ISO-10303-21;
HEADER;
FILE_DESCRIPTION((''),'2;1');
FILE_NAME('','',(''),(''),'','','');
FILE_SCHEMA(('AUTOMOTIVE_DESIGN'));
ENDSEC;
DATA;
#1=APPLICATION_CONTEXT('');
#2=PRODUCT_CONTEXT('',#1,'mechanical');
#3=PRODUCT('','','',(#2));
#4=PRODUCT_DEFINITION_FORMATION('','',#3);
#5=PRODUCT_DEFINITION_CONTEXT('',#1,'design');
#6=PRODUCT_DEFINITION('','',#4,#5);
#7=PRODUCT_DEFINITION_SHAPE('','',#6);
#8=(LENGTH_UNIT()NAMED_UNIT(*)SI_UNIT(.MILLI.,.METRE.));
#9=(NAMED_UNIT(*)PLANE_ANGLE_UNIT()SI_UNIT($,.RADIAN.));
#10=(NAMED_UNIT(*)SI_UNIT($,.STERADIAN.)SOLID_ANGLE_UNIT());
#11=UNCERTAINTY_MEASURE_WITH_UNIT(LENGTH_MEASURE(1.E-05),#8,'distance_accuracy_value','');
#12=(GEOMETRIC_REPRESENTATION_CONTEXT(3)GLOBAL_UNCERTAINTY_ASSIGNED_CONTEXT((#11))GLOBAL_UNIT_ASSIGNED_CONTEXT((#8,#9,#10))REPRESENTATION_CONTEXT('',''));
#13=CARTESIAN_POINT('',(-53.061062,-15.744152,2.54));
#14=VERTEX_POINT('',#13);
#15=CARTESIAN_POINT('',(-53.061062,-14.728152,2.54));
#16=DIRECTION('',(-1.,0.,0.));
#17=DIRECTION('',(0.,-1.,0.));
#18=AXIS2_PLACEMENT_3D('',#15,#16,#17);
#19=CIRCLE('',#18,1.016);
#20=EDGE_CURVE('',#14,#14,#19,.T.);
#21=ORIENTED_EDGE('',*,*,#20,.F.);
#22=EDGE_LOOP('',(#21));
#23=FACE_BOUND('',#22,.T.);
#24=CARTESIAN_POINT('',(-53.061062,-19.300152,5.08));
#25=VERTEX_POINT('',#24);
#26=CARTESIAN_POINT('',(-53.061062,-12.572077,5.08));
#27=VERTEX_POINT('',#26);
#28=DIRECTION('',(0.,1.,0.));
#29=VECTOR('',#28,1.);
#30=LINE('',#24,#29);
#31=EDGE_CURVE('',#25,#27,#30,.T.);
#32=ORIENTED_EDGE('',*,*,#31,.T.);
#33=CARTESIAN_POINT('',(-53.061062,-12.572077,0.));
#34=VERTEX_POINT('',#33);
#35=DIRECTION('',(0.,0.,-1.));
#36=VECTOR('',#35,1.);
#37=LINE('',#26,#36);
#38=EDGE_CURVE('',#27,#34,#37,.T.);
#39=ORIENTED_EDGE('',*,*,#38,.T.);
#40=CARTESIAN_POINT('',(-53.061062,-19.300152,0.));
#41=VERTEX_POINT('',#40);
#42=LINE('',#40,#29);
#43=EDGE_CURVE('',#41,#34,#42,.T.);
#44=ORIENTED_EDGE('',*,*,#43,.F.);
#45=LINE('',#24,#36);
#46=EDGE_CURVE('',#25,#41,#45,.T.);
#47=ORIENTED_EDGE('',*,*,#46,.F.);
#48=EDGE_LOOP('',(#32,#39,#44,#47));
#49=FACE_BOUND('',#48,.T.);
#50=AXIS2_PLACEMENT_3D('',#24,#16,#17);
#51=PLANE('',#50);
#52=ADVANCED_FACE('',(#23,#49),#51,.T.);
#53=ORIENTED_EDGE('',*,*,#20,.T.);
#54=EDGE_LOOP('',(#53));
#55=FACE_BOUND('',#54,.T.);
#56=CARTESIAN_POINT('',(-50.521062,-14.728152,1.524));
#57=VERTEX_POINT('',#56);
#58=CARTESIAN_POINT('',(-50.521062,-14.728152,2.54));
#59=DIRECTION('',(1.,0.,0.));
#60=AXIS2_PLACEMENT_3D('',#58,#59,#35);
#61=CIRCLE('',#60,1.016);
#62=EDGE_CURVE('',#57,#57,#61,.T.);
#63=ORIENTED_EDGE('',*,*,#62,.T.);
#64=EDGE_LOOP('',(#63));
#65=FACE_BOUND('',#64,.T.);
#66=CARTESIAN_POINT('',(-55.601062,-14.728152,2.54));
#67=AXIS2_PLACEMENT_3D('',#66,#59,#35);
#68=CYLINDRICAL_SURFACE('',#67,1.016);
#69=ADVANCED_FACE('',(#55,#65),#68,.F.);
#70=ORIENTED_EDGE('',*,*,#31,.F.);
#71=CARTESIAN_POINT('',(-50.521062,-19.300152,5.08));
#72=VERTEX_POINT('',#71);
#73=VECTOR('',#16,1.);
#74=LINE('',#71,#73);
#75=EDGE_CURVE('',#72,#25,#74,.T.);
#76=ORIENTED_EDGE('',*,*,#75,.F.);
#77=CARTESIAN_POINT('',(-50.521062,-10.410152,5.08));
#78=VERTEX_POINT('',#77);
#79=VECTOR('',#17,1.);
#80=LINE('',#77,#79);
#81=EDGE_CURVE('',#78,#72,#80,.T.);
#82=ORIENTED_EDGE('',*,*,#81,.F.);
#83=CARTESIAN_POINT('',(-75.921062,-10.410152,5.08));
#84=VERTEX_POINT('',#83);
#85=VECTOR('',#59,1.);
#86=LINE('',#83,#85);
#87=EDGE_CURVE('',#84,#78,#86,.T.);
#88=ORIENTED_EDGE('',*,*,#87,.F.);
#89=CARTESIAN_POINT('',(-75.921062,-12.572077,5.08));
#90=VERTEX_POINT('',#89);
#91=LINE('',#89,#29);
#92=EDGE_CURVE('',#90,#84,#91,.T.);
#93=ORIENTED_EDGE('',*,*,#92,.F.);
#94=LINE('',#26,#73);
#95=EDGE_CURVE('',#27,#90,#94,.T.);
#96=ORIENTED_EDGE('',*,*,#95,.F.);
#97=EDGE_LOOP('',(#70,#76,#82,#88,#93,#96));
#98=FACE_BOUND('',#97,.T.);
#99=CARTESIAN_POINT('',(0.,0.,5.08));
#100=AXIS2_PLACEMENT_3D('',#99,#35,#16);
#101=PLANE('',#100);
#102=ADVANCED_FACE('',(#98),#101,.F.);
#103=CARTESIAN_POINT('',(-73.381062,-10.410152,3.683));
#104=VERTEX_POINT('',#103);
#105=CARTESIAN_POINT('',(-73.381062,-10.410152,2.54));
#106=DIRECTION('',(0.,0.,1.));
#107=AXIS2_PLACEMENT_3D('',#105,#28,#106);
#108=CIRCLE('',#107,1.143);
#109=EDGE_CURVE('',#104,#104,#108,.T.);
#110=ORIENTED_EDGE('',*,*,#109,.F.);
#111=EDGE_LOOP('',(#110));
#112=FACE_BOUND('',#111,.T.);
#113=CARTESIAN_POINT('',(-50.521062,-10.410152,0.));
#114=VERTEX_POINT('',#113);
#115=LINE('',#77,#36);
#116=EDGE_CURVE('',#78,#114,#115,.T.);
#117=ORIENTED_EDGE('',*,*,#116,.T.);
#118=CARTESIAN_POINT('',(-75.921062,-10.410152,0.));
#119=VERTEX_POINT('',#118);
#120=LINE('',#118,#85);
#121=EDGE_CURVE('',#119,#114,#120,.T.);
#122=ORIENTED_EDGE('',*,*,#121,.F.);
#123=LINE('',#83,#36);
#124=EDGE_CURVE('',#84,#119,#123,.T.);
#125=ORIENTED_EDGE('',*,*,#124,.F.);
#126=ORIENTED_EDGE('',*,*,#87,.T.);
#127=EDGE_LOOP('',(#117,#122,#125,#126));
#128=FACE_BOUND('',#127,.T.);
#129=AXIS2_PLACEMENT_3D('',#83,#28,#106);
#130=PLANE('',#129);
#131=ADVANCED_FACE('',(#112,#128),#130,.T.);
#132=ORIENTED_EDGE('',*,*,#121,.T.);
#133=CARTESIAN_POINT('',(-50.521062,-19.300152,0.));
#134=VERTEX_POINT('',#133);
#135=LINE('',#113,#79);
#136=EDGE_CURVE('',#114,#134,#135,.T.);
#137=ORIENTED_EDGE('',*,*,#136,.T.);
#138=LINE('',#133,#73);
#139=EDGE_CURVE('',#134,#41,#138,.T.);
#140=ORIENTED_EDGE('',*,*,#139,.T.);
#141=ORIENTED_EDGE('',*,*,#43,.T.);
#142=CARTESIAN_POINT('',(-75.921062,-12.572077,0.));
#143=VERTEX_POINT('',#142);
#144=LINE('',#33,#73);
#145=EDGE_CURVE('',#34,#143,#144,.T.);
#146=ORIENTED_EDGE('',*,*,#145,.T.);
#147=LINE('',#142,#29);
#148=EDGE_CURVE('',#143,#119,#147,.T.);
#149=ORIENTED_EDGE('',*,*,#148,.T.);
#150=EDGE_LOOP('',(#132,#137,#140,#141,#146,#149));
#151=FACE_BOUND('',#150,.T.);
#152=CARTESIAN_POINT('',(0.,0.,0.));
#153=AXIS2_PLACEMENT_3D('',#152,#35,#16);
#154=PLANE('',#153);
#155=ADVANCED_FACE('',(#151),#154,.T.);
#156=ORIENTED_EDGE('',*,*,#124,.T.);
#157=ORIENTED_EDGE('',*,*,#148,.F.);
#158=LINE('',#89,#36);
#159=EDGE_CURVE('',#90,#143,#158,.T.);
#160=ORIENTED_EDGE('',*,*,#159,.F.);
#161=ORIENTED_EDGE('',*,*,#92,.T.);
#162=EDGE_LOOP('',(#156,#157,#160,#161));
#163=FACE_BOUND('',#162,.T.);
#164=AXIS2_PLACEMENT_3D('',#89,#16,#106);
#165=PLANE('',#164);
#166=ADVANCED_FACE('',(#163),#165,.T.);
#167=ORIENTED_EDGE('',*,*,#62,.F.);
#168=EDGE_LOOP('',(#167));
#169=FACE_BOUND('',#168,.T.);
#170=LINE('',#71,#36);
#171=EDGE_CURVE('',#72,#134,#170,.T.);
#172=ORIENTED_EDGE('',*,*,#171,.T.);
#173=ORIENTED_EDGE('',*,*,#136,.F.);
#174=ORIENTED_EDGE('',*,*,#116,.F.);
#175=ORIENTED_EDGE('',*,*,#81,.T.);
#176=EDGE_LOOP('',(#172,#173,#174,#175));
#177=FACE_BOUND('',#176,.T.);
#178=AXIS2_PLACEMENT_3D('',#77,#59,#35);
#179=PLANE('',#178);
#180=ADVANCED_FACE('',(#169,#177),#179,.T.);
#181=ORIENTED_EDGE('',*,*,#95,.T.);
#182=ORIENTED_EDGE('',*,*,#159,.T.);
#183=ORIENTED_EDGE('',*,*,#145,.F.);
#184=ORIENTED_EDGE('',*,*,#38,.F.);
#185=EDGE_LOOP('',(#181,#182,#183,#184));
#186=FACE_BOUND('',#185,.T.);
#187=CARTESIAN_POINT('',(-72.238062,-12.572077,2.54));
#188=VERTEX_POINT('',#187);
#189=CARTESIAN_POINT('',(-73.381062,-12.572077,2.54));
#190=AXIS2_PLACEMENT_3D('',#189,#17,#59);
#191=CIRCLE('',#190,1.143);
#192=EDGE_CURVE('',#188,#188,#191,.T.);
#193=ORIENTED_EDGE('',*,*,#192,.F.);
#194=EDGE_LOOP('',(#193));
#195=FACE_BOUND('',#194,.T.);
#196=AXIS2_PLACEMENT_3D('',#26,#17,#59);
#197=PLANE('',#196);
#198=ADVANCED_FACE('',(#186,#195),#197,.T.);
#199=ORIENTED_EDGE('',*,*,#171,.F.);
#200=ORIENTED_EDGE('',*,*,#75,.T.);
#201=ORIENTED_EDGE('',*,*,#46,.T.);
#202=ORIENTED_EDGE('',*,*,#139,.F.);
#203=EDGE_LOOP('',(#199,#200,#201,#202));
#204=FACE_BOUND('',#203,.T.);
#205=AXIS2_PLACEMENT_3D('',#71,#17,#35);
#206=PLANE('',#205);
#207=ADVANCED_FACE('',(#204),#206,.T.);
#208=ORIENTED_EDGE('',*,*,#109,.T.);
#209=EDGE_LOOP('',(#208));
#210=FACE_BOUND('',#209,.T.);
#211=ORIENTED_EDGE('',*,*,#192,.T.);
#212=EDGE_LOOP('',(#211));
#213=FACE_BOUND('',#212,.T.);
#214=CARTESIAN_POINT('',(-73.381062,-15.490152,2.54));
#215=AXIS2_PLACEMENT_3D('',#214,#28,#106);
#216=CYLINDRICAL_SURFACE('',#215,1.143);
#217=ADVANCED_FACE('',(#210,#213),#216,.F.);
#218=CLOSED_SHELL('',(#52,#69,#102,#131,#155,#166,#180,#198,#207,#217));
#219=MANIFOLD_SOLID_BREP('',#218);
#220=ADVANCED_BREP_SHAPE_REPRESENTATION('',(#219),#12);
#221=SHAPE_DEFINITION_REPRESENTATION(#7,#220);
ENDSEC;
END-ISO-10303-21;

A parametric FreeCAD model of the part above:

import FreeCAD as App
import Part
import Sketcher
Q = App.Units.Quantity

doc = App.newDocument("Part")
body = doc.addObject("PartDesign::Body", "Body")

# Sketch on XY plane
sketch1 = body.newObject("Sketcher::SketchObject", "Sketch")
sketch1.AttachmentSupport = (doc.getObject("XY_Plane"), [""])
sketch1.MapMode = "FlatFace"
sketch1.addGeometry(Part.LineSegment(App.Vector(-75.9, -10.4, 0), App.Vector(-75.9, -12.6, 0)), False)
sketch1.addGeometry(Part.LineSegment(App.Vector(-75.9, -12.6, 0), App.Vector(-53.1, -12.6, 0)), False)
sketch1.addGeometry(Part.LineSegment(App.Vector(-53.1, -12.6, 0), App.Vector(-53.1, -19.3, 0)), False)
sketch1.addGeometry(Part.LineSegment(App.Vector(-53.1, -19.3, 0), App.Vector(-50.5, -19.3, 0)), False)
sketch1.addGeometry(Part.LineSegment(App.Vector(-50.5, -19.3, 0), App.Vector(-50.5, -10.4, 0)), False)
sketch1.addGeometry(Part.LineSegment(App.Vector(-50.5, -10.4, 0), App.Vector(-75.9, -10.4, 0)), False)
sketch1.addConstraint(Sketcher.Constraint("Coincident", 0, 2, 1, 1))
sketch1.addConstraint(Sketcher.Constraint("Coincident", 1, 2, 2, 1))
sketch1.addConstraint(Sketcher.Constraint("Coincident", 2, 2, 3, 1))
sketch1.addConstraint(Sketcher.Constraint("Coincident", 3, 2, 4, 1))
sketch1.addConstraint(Sketcher.Constraint("Coincident", 4, 2, 5, 1))
sketch1.addConstraint(Sketcher.Constraint("Coincident", 5, 2, 0, 1))
sketch1.addConstraint(Sketcher.Constraint("Vertical", 0))
sketch1.addConstraint(Sketcher.Constraint("Horizontal", 1))
sketch1.addConstraint(Sketcher.Constraint("Vertical", 2))
sketch1.addConstraint(Sketcher.Constraint("Horizontal", 3))
sketch1.addConstraint(Sketcher.Constraint("Vertical", 4))
sketch1.addConstraint(Sketcher.Constraint("Horizontal", 5))
sketch1.addConstraint(Sketcher.Constraint("DistanceX", 5, 2, 5, 1, Q("1 in")))
sketch1.addConstraint(Sketcher.Constraint("DistanceX", 1, 1, 1, 2, Q("0.9 in")))
sketch1.addConstraint(Sketcher.Constraint("DistanceY", 4, 1, 4, 2, Q("0.35 in")))
sketch1.addConstraint(Sketcher.Constraint("DistanceY", 0, 2, 0, 1, Q("2.161925 mm")))
sketch1.addConstraint(Sketcher.Constraint("DistanceY", 2, 2, -1, 1, Q("19.300152 mm")))
sketch1.addConstraint(Sketcher.Constraint("DistanceX", 0, 2, -1, 1, Q("75.921062 mm")))
pad1 = body.newObject("PartDesign::Pad", "Pad")
pad1.Profile = sketch1
pad1.Length = Q("0.2 in")

# Sketch on XZ plane
sketch2 = body.newObject("Sketcher::SketchObject", "Sketch001")
sketch2.AttachmentSupport = (doc.getObject("XZ_Plane"), [""])
sketch2.MapMode = "FlatFace"
sketch2.AttachmentOffset = App.Placement(App.Vector(0, 0, 10.410152), App.Rotation())
sketch2.addGeometry(Part.Circle(App.Vector(-73.4, 2.5, 0), App.Vector(0, 0, 1), 1.1), False)
sketch2.addConstraint(Sketcher.Constraint("Diameter", 0, Q("0.09 in")))
sketch2.addConstraint(Sketcher.Constraint("DistanceY", -1, 1, 0, 3, Q("0.1 in")))
sketch2.addConstraint(Sketcher.Constraint("DistanceX", 0, 3, -1, 1, Q("73.381062 mm")))
pocket1 = body.newObject("PartDesign::Pocket", "Pocket")
pocket1.Profile = sketch2
pocket1.Length = Q("0.2 in")
pocket1.Reversed = True

# Sketch on YZ plane
sketch3 = body.newObject("Sketcher::SketchObject", "Sketch002")
sketch3.AttachmentSupport = (doc.getObject("YZ_Plane"), [""])
sketch3.MapMode = "FlatFace"
sketch3.AttachmentOffset = App.Placement(App.Vector(0, 0, -50.521062), App.Rotation())
sketch3.addGeometry(Part.Circle(App.Vector(-14.7, 2.5, 0), App.Vector(0, 0, 1), 1), False)
sketch3.addConstraint(Sketcher.Constraint("Diameter", 0, Q("0.08 in")))
sketch3.addConstraint(Sketcher.Constraint("DistanceY", -1, 1, 0, 3, Q("0.1 in")))
sketch3.addConstraint(Sketcher.Constraint("DistanceX", 0, 3, -1, 1, Q("14.728152 mm")))
pocket2 = body.newObject("PartDesign::Pocket", "Pocket001")
pocket2.Profile = sketch3
pocket2.Length = Q("0.2 in")

doc.recompute()
